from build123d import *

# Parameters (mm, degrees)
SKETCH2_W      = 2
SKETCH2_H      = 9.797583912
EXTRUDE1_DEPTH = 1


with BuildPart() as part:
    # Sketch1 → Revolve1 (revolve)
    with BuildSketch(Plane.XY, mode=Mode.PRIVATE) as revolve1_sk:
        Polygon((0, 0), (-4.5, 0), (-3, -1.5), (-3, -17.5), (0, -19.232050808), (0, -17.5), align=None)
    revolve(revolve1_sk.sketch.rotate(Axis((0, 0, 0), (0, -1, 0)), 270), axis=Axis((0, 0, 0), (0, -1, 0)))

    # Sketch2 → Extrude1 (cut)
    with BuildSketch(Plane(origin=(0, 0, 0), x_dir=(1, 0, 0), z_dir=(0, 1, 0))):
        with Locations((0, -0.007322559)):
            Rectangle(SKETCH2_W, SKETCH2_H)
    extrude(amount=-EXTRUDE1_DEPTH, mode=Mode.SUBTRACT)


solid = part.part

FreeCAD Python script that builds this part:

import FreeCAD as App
import Part
import Sketcher
from FreeCAD import Vector
Q = App.Units.Quantity

doc = App.newDocument("Part")
body = doc.addObject("PartDesign::Body", "Body")

sketch1 = body.newObject("Sketcher::SketchObject", "Sketch")
sketch1.AttachmentSupport = (doc.getObject("XY_Plane"), [""])
sketch1.MapMode = "FlatFace"
sketch1.addGeometry(Part.LineSegment(Vector(0, 0, 0), Vector(-4.5, 0, 0)), False)
sketch1.addGeometry(Part.LineSegment(Vector(-4.5, 0, 0), Vector(-3, -1.5, 0)), False)
sketch1.addGeometry(Part.LineSegment(Vector(-3, -1.5, 0), Vector(-3, -17.5, 0)), False)
sketch1.addGeometry(Part.LineSegment(Vector(-3, -17.5, 0), Vector(0, -19.232051, 0)), False)
sketch1.addGeometry(Part.LineSegment(Vector(0, -19.232051, 0), Vector(0, 0, 0)), False)
sketch1.addConstraint(Sketcher.Constraint("Coincident", 0, 2, 1, 1))
sketch1.addConstraint(Sketcher.Constraint("Coincident", 1, 2, 2, 1))
sketch1.addConstraint(Sketcher.Constraint("Coincident", 2, 2, 3, 1))
sketch1.addConstraint(Sketcher.Constraint("Coincident", 3, 2, 4, 1))
sketch1.addConstraint(Sketcher.Constraint("Coincident", 4, 2, 0, 1))
sketch1.addConstraint(Sketcher.Constraint("Horizontal", 0))
sketch1.addConstraint(Sketcher.Constraint("Vertical", 2))
sketch1.addConstraint(Sketcher.Constraint("Vertical", 4))
sketch1.addConstraint(Sketcher.Constraint("Coincident", 4, 2, -1, 1))
sketch1.addConstraint(Sketcher.Constraint("DistanceY", 2, 2, 2, 1, 16.0))
sketch1.addConstraint(Sketcher.Constraint("Angle", 1, Q("-45 deg")))
sketch1.addConstraint(Sketcher.Constraint("Angle", 3, Q("-30 deg")))
sketch1.addConstraint(Sketcher.Constraint("DistanceX", 0, 2, 0, 1, 4.5))
sketch1.addConstraint(Sketcher.Constraint("DistanceX", 1, 2, -1, 1, 3.0))
revolution = body.newObject("PartDesign::Revolution", "Revolution")
revolution.Profile = sketch1
revolution.ReferenceAxis = (sketch1, ["V_Axis"])
revolution.Angle = 360

sketch2 = body.newObject("Sketcher::SketchObject", "Sketch001")
sketch2.AttachmentSupport = (doc.getObject("XZ_Plane"), [""])
sketch2.MapMode = "FlatFace"
sketch2.addGeometry(Part.LineSegment(Vector(-1, -4.891469, 0), Vector(-1, 4.906115, 0)), False)
sketch2.addGeometry(Part.LineSegment(Vector(-1, 4.906115, 0), Vector(1, 4.906115, 0)), False)
sketch2.addGeometry(Part.LineSegment(Vector(1, 4.906115, 0), Vector(1, -4.891469, 0)), False)
sketch2.addGeometry(Part.LineSegment(Vector(1, -4.891469, 0), Vector(-1, -4.891469, 0)), False)
sketch2.addConstraint(Sketcher.Constraint("Coincident", 0, 2, 1, 1))
sketch2.addConstraint(Sketcher.Constraint("Coincident", 1, 2, 2, 1))
sketch2.addConstraint(Sketcher.Constraint("Coincident", 2, 2, 3, 1))
sketch2.addConstraint(Sketcher.Constraint("Coincident", 3, 2, 0, 1))
sketch2.addConstraint(Sketcher.Constraint("Vertical", 0))
sketch2.addConstraint(Sketcher.Constraint("Horizontal", 1))
sketch2.addConstraint(Sketcher.Constraint("Vertical", 2))
sketch2.addConstraint(Sketcher.Constraint("Horizontal", 3))
sketch2.addConstraint(Sketcher.Constraint("DistanceX", 1, 1, 1, 2, 2.0))
sketch2.addConstraint(Sketcher.Constraint("DistanceX", 0, 2, -1, 1, 1.0))
sketch2.addConstraint(Sketcher.Constraint("DistanceY", 0, 1, 0, 2, 9.797584))
sketch2.addConstraint(Sketcher.Constraint("DistanceY", 2, 2, -1, 1, 4.891469))
pocket1 = body.newObject("PartDesign::Pocket", "Pocket")
pocket1.Profile = sketch2
pocket1.Length = 1
pocket1.Reversed = True

doc.recompute()
